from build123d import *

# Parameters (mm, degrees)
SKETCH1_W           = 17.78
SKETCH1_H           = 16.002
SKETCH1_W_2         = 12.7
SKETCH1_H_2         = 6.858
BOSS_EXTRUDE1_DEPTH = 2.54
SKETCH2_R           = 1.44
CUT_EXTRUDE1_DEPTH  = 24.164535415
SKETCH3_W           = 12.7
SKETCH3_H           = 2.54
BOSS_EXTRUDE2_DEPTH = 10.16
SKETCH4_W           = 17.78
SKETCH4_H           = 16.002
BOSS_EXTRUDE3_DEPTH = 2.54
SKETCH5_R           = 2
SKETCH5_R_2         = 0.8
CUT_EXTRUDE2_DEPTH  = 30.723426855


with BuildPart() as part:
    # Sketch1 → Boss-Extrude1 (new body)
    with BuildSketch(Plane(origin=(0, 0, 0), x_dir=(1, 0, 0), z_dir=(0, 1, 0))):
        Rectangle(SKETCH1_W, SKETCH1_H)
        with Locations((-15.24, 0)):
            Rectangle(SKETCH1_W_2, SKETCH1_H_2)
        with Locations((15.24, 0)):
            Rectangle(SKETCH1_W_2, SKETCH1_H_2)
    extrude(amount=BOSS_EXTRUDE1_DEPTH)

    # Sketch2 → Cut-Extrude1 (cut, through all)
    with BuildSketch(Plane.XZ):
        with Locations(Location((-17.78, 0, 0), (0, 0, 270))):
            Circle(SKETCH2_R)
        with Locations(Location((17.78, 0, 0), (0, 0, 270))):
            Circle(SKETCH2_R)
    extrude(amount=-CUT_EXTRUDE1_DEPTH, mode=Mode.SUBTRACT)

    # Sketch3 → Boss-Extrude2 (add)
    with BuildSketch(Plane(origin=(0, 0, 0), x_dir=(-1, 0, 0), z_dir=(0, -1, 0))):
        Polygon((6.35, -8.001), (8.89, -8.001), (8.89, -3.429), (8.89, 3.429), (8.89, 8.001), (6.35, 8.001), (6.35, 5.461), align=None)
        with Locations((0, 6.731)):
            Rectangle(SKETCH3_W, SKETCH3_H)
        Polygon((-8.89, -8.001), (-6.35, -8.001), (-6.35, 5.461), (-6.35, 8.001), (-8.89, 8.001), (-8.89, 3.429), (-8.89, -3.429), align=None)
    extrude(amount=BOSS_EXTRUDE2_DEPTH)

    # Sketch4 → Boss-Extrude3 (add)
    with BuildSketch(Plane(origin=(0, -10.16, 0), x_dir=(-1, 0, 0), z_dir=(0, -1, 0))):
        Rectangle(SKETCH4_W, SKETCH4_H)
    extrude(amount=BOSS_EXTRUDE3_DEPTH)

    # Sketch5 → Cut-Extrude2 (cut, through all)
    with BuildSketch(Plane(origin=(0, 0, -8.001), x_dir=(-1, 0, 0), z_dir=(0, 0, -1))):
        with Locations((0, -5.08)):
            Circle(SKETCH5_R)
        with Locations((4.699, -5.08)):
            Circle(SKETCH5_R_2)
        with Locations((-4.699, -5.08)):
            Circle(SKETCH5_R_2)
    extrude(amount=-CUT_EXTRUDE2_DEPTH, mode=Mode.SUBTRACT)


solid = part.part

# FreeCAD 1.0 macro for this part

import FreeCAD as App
import Part
import Sketcher
from FreeCAD import Vector
Q = App.Units.Quantity


def add_polygon(sketch, points):
    """Adds a closed chain of lines whose ends are joined by coincident constraints."""
    first, n = sketch.GeometryCount, len(points)
    for a, b in zip(points, points[1:] + points[:1]):
        sketch.addGeometry(Part.LineSegment(App.Vector(*a, 0), App.Vector(*b, 0)), False)
    for i in range(n):
        sketch.addConstraint(Sketcher.Constraint("Coincident", first + i, 2, first + (i + 1) % n, 1))

doc = App.newDocument("Part")
body = doc.addObject("PartDesign::Body", "Body")

# Sketch on XZ plane
sketch1 = body.newObject("Sketcher::SketchObject", "Sketch")
sketch1.AttachmentSupport = (doc.getObject("XZ_Plane"), [""])
sketch1.MapMode = "FlatFace"
add_polygon(sketch1, [(-8.9, 3.4), (-8.9, 8), (8.9, 8), (8.9, 3.4), (21.6, 3.4), (21.6, -3.4), (8.9, -3.4), (8.9, -8), (-8.9, -8), (-8.9, -3.4), (-21.6, -3.4), (-21.6, 3.4)])  # lines 0-11
sketch1.addConstraint([
    Sketcher.Constraint("Vertical", 0),
    Sketcher.Constraint("Horizontal", 1),
    Sketcher.Constraint("Vertical", 2),
    Sketcher.Constraint("Horizontal", 3),
    Sketcher.Constraint("Vertical", 4),
    Sketcher.Constraint("Horizontal", 5),
    Sketcher.Constraint("Vertical", 6),
    Sketcher.Constraint("Horizontal", 7),
    Sketcher.Constraint("Vertical", 8),
    Sketcher.Constraint("Horizontal", 9),
    Sketcher.Constraint("Vertical", 10),
    Sketcher.Constraint("Horizontal", 11),
    Sketcher.Constraint("Symmetric", 0, 2, 6, 2, -1, 1),
    Sketcher.Constraint("Symmetric", 2, 2, 8, 2, -1, 1),
    Sketcher.Constraint("Symmetric", 4, 2, 10, 2, -1, 1),
    Sketcher.Constraint("Symmetric", 5, 2, 8, 2, -2),
    Sketcher.Constraint("DistanceX", 1, 1, 1, 2, Q("0.7 in")),
    Sketcher.Constraint("DistanceX", 3, 1, 3, 2, Q("0.5 in")),
    Sketcher.Constraint("DistanceY", 0, 1, 0, 2, Q("0.18 in")),
    Sketcher.Constraint("DistanceY", 4, 2, 4, 1, Q("0.27 in")),
])
pad1 = body.newObject("PartDesign::Pad", "Pad")
pad1.Profile = sketch1
pad1.Length = Q("0.1 in")
pad1.Reversed = True

# Sketch on XZ plane
sketch2 = body.newObject("Sketcher::SketchObject", "Sketch001")
sketch2.AttachmentSupport = (doc.getObject("XZ_Plane"), [""])
sketch2.MapMode = "FlatFace"
sketch2.addGeometry([
    Part.Circle(Vector(-17.8, 0, 0), Vector(0, 0, 1), 1.4),
    Part.Circle(Vector(17.8, 0, 0), Vector(0, 0, 1), 1.4),
], False)
sketch2.addConstraint([
    Sketcher.Constraint("Equal", 0, 1),
    Sketcher.Constraint("Symmetric", 0, 3, 1, 3, -1, 1),
    Sketcher.Constraint("PointOnObject", 0, 3, -1),
    Sketcher.Constraint("DistanceX", 0, 3, -1, 1, Q("0.7 in")),
    Sketcher.Constraint("Diameter", 0, 2.88),
])
pocket1 = body.newObject("PartDesign::Pocket", "Pocket")
pocket1.Profile = sketch2
pocket1.Type = "ThroughAll"

# Sketch on XZ plane
sketch3 = body.newObject("Sketcher::SketchObject", "Sketch002")
sketch3.AttachmentSupport = (doc.getObject("XZ_Plane"), [""])
sketch3.MapMode = "FlatFace"
add_polygon(sketch3, [(-6.3, 8), (-8.9, 8), (-8.9, -8), (8.9, -8), (8.9, 8), (6.3, 8), (6.3, -5.5), (-6.3, -5.5)])  # lines 0-7
sketch3.addConstraint([
    Sketcher.Constraint("Horizontal", 0),
    Sketcher.Constraint("Vertical", 1),
    Sketcher.Constraint("Horizontal", 2),
    Sketcher.Constraint("Vertical", 3),
    Sketcher.Constraint("Horizontal", 4),
    Sketcher.Constraint("Vertical", 5),
    Sketcher.Constraint("Horizontal", 6),
    Sketcher.Constraint("Vertical", 7),
    Sketcher.Constraint("Symmetric", 0, 2, 2, 2, -1, 1),
    Sketcher.Constraint("Symmetric", 4, 2, 7, 2, -2),
    Sketcher.Constraint("DistanceX", 0, 2, 0, 1, Q("0.1 in")),
    Sketcher.Constraint("DistanceX", 2, 1, 2, 2, Q("0.7 in")),
    Sketcher.Constraint("DistanceY", 1, 2, 1, 1, Q("0.63 in")),
    Sketcher.Constraint("DistanceY", 5, 2, 5, 1, Q("0.53 in")),
])
pad2 = body.newObject("PartDesign::Pad", "Pad001")
pad2.Profile = sketch3
pad2.Length = Q("0.4 in")

# Sketch on XZ plane
sketch4 = body.newObject("Sketcher::SketchObject", "Sketch003")
sketch4.AttachmentSupport = (doc.getObject("XZ_Plane"), [""])
sketch4.MapMode = "FlatFace"
sketch4.AttachmentOffset = App.Placement(Vector(0, 0, 0.4 * 25.4), App.Rotation())
add_polygon(sketch4, [(9, -8), (9, 8), (-9, 8), (-9, -8)])  # lines 0-3
sketch4.addConstraint([
    Sketcher.Constraint("Vertical", 0),
    Sketcher.Constraint("Horizontal", 1),
    Sketcher.Constraint("Vertical", 2),
    Sketcher.Constraint("Horizontal", 3),
    Sketcher.Constraint("Symmetric", 0, 2, 2, 2, -1, 1),
    Sketcher.Constraint("DistanceX", 1, 2, 1, 1, Q("0.7 in")),
    Sketcher.Constraint("DistanceY", 0, 1, 0, 2, Q("0.63 in")),
])
pad3 = body.newObject("PartDesign::Pad", "Pad002")
pad3.Profile = sketch4
pad3.Length = Q("0.1 in")

# Sketch on XY plane
sketch5 = body.newObject("Sketcher::SketchObject", "Sketch004")
sketch5.AttachmentSupport = (doc.getObject("XY_Plane"), [""])
sketch5.MapMode = "FlatFace"
sketch5.AttachmentOffset = App.Placement(Vector(0, 0, -0.315 * 25.4), App.Rotation())
sketch5.addGeometry([
    Part.Circle(Vector(0, -5.1, 0), Vector(0, 0, 1), 2),
    Part.Circle(Vector(-4.7, -5.1, 0), Vector(0, 0, 1), 0.8),
    Part.Circle(Vector(4.7, -5.1, 0), Vector(0, 0, 1), 0.8),
], False)
sketch5.addConstraint([
    Sketcher.Constraint("Equal", 1, 2),
    Sketcher.Constraint("Symmetric", 1, 3, 2, 3, -2),
    Sketcher.Constraint("PointOnObject", 0, 3, -2),
    Sketcher.Constraint("Horizontal", 0, 3, 1, 3),
    Sketcher.Constraint("DistanceY", 0, 3, -1, 1, Q("0.2 in")),
    Sketcher.Constraint("Diameter", 0, 4.0),
    Sketcher.Constraint("Diameter", 1, 1.6),
    Sketcher.Constraint("DistanceX", 1, 3, 2, 3, Q("0.37 in")),
])
pocket2 = body.newObject("PartDesign::Pocket", "Pocket001")
pocket2.Profile = sketch5
pocket2.Type = "ThroughAll"
pocket2.Reversed = True

doc.recompute()
